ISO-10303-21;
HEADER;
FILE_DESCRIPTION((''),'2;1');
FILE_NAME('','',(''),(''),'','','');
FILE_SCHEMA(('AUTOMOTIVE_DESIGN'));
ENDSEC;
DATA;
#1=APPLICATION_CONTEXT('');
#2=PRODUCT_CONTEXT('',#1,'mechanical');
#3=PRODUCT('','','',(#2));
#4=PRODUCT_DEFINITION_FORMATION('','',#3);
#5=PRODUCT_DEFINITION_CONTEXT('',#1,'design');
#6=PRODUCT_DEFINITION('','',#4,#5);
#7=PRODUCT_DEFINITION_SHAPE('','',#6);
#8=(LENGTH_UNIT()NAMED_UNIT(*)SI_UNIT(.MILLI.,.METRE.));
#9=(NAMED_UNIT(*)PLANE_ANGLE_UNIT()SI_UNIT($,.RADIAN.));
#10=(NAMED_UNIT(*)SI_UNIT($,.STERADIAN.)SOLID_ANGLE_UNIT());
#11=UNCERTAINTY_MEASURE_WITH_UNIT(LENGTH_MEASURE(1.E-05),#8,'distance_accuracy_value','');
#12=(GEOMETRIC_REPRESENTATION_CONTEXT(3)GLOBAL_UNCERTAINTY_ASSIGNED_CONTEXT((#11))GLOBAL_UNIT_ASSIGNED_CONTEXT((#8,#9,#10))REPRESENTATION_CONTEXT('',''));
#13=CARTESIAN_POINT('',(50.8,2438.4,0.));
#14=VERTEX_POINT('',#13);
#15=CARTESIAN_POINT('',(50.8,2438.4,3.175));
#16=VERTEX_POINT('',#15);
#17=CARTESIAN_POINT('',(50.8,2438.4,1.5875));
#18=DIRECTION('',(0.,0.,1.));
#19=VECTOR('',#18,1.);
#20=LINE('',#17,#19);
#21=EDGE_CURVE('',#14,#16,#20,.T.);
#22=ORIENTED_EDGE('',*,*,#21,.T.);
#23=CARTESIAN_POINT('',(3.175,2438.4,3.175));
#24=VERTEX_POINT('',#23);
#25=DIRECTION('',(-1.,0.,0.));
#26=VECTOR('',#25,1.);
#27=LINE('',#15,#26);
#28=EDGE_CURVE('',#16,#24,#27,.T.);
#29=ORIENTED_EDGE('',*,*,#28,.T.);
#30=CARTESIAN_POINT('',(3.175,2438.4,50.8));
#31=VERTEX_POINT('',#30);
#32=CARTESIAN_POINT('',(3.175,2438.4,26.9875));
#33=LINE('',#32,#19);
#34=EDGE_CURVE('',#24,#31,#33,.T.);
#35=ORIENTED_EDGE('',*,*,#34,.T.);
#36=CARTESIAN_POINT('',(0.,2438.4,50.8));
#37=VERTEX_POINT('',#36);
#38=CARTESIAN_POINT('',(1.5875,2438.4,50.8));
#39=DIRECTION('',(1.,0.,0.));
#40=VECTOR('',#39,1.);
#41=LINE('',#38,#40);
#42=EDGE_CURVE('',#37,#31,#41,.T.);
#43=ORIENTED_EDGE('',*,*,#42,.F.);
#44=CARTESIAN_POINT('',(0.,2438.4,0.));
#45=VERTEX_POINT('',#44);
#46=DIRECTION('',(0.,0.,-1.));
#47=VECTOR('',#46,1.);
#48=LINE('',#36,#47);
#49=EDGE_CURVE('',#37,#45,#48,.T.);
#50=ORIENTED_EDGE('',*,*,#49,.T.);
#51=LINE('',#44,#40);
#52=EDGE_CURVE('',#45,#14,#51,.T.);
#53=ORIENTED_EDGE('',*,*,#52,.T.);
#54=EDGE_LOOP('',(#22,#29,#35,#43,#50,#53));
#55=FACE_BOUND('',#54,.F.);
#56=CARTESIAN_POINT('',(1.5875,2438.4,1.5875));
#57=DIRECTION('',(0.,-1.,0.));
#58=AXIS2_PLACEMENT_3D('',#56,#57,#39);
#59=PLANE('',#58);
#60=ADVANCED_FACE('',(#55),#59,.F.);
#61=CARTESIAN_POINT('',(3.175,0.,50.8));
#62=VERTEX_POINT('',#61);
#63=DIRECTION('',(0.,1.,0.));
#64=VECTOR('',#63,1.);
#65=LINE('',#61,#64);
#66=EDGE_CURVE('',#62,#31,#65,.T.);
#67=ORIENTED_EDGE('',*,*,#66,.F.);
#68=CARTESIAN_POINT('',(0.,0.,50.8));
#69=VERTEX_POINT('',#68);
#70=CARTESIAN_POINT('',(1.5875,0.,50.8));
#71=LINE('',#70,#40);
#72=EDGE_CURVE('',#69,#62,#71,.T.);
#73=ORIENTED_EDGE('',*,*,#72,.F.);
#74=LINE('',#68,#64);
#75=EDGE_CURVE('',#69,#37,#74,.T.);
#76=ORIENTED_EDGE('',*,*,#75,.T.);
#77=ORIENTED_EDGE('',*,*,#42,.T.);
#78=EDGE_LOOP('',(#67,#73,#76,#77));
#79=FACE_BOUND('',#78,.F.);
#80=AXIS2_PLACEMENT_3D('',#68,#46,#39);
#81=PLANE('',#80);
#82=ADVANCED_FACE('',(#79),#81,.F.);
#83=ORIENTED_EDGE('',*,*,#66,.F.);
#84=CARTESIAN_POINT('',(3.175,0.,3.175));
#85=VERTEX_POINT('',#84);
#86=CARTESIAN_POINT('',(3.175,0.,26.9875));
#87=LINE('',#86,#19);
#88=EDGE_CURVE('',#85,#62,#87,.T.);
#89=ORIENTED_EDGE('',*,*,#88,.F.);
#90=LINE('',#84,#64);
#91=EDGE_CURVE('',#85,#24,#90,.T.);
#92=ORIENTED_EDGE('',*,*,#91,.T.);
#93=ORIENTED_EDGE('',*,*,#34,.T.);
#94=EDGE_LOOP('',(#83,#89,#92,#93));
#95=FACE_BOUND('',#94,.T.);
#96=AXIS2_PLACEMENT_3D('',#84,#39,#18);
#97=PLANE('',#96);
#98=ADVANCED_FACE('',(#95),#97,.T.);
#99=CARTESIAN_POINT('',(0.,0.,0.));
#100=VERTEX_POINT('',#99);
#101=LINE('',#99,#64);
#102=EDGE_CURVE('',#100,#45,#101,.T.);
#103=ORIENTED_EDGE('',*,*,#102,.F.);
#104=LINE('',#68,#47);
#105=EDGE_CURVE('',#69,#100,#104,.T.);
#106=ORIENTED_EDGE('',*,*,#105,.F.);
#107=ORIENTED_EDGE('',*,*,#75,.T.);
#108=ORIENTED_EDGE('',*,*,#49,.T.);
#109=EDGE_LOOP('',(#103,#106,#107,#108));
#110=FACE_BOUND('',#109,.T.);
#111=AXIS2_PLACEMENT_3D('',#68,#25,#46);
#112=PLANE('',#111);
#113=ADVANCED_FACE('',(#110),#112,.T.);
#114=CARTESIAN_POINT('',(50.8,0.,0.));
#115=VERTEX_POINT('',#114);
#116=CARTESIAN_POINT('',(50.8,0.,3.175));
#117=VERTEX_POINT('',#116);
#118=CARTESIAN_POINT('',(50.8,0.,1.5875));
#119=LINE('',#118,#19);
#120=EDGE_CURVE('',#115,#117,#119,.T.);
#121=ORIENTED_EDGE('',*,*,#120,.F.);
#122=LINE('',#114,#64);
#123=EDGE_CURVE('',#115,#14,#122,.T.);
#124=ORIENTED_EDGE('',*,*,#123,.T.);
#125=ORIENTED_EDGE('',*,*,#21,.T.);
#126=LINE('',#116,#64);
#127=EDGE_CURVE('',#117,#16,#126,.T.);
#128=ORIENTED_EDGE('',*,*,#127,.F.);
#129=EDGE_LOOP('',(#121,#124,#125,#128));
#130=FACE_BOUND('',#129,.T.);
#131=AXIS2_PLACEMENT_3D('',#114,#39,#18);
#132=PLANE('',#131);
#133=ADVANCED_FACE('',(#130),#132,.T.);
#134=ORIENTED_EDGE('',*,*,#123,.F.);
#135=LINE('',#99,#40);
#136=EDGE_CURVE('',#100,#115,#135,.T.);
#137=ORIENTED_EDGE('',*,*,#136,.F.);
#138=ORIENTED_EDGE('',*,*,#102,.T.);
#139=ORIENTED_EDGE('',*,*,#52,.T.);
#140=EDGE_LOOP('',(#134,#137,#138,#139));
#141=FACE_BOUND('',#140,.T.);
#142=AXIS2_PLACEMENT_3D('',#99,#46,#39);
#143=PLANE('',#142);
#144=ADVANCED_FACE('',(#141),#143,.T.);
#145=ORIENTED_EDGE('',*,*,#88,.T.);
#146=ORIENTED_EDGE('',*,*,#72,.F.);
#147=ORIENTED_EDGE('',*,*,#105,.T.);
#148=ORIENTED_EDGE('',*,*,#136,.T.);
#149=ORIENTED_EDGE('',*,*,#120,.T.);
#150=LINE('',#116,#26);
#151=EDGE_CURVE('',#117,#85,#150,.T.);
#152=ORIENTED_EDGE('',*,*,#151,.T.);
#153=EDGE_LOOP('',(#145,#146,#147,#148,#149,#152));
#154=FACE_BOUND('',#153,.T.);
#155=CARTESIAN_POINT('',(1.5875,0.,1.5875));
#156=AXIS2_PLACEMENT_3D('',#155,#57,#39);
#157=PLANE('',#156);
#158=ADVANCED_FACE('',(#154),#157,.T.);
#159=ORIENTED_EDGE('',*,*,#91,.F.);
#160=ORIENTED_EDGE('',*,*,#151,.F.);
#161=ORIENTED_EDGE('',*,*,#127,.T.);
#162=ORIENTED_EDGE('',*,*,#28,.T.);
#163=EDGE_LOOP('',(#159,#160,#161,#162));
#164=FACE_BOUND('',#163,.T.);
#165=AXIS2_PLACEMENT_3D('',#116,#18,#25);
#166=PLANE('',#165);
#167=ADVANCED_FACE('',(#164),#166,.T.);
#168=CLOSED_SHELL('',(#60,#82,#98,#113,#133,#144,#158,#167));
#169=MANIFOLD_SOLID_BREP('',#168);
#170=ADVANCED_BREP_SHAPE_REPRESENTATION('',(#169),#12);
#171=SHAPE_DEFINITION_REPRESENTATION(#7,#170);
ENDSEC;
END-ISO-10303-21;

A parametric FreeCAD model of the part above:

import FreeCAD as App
import Part
import Sketcher

V = App.Vector
Q = App.Units.Quantity

doc = App.newDocument("Part")
body = doc.addObject("PartDesign::Body", "Body")

# Sketch on XZ plane
sketch1 = body.newObject("Sketcher::SketchObject", "Sketch")
sketch1.AttachmentSupport = (doc.getObject("XZ_Plane"), [""])
sketch1.MapMode = "FlatFace"
sketch1.addGeometry([
    Part.LineSegment(V(0, 0, 0), V(50.8, 0, 0)),  # 0
    Part.LineSegment(V(50.8, 0, 0), V(50.8, 3.2, 0)),  # 1
    Part.LineSegment(V(50.8, 3.2, 0), V(3.2, 3.2, 0)),  # 2
    Part.LineSegment(V(3.2, 3.2, 0), V(3.2, 50.8, 0)),  # 3
    Part.LineSegment(V(3.2, 50.8, 0), V(0, 50.8, 0)),  # 4
    Part.LineSegment(V(0, 50.8, 0), V(0, 0, 0)),  # 5
], False)
sketch1.addConstraint([
    Sketcher.Constraint("Coincident", 0, 2, 1, 1),
    Sketcher.Constraint("Coincident", 1, 2, 2, 1),
    Sketcher.Constraint("Coincident", 2, 2, 3, 1),
    Sketcher.Constraint("Coincident", 3, 2, 4, 1),
    Sketcher.Constraint("Coincident", 4, 2, 5, 1),
    Sketcher.Constraint("Coincident", 5, 2, 0, 1),
    Sketcher.Constraint("Horizontal", 0),
    Sketcher.Constraint("Vertical", 1),
    Sketcher.Constraint("Horizontal", 2),
    Sketcher.Constraint("Vertical", 3),
    Sketcher.Constraint("Horizontal", 4),
    Sketcher.Constraint("Vertical", 5),
    Sketcher.Constraint("Coincident", 5, 2, -1, 1),
    Sketcher.Constraint("Equal", 4, 1),
    Sketcher.Constraint("Equal", 2, 3),
    Sketcher.Constraint("DistanceX", 0, 1, 0, 2, Q("2 in")),
    Sketcher.Constraint("DistanceX", 2, 2, 2, 1, Q("1.875 in")),
])
pad1 = body.newObject("PartDesign::Pad", "Pad")
pad1.Profile = sketch1
pad1.Length = Q("96 in")
pad1.Reversed = True

doc.recompute()
